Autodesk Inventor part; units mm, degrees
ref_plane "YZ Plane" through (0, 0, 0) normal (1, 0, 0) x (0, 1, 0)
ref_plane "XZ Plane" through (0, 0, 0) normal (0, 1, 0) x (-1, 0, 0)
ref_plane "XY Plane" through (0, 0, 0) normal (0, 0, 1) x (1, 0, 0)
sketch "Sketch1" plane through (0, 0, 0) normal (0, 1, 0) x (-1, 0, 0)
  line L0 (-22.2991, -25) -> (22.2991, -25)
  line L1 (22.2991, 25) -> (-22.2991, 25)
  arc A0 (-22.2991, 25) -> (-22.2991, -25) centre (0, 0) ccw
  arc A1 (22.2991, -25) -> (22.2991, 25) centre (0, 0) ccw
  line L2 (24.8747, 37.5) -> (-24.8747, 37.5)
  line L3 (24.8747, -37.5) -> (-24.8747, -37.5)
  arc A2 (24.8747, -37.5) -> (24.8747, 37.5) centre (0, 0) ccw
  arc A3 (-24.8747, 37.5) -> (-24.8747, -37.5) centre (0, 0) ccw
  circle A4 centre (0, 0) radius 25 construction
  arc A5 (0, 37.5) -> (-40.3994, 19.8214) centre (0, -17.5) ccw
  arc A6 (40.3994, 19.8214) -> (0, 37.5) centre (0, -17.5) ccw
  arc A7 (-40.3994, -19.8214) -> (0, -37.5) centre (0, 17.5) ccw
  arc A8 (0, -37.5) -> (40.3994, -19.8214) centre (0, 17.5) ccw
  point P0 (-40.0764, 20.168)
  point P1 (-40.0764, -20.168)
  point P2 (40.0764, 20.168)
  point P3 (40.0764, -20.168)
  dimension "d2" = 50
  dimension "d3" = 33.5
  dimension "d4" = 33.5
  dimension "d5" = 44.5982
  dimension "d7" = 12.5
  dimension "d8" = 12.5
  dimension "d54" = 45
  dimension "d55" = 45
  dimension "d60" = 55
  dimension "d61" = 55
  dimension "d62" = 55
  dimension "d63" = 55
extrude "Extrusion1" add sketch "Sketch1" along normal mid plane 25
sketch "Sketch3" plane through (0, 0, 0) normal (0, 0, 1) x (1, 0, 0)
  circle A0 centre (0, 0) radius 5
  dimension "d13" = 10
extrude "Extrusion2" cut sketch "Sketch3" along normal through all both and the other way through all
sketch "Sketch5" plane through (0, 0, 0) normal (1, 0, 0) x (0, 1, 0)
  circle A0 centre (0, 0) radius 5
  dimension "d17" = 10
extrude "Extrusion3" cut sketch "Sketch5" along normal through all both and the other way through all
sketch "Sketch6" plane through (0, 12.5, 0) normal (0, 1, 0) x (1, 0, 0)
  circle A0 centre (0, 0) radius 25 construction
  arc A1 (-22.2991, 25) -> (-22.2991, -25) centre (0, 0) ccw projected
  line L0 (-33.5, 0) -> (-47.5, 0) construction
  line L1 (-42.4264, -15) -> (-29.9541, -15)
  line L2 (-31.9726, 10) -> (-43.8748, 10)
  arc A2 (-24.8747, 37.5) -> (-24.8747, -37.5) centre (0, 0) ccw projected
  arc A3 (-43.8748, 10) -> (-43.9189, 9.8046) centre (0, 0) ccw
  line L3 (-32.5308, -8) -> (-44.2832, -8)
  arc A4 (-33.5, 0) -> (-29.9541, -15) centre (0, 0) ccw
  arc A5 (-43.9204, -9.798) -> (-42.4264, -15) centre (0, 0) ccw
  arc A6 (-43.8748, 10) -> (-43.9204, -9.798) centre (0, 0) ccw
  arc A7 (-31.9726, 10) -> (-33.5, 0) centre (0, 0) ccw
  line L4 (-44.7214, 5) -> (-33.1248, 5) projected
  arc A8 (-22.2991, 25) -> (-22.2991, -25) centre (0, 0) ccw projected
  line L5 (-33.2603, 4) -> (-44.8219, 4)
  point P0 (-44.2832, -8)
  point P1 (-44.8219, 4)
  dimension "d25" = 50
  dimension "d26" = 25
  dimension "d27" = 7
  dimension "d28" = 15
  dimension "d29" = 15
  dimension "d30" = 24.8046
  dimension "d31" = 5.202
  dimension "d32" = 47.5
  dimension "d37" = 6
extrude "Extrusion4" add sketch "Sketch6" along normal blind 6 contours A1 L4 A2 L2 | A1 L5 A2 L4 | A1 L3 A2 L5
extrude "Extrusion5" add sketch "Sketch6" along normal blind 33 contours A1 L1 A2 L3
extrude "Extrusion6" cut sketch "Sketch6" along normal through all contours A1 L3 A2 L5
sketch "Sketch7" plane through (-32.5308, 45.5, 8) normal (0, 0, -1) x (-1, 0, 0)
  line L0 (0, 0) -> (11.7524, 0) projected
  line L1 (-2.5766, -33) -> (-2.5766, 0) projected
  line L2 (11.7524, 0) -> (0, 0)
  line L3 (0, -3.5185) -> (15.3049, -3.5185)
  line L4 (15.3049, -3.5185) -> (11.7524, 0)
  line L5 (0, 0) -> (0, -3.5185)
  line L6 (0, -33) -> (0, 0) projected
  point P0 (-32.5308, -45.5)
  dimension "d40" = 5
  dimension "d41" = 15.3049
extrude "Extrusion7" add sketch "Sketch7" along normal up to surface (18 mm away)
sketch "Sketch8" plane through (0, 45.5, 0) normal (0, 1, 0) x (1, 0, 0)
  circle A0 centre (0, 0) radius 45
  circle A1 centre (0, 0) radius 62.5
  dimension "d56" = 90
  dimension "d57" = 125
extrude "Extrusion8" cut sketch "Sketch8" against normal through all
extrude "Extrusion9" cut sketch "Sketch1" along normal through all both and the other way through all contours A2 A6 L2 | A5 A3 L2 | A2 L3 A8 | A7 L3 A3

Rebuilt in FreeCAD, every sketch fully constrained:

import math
import FreeCAD as App
import Part
import Sketcher

V = App.Vector


def add_polygon(sketch, points):
    """Adds a closed chain of lines whose ends are joined by coincident constraints."""
    first, n = sketch.GeometryCount, len(points)
    for a, b in zip(points, points[1:] + points[:1]):
        sketch.addGeometry(Part.LineSegment(App.Vector(*a, 0), App.Vector(*b, 0)), False)
    for i in range(n):
        sketch.addConstraint(Sketcher.Constraint("Coincident", first + i, 2, first + (i + 1) % n, 1))

doc = App.newDocument("Part")
body = doc.addObject("PartDesign::Body", "Body")

# Sketch on XZ plane
sketch1 = body.newObject("Sketcher::SketchObject", "Sketch")
sketch1.AttachmentSupport = (doc.getObject("XZ_Plane"), [""])
sketch1.MapMode = "FlatFace"
sketch1.addGeometry([
    Part.LineSegment(V(-25, 38, 0), V(25, 38, 0)),  # 0
    Part.ArcOfCircle(Part.Circle(V(0, 0, 0), V(0, 0, 1), 45), math.radians(-56), math.radians(56)),  # 1
    Part.LineSegment(V(25, -38, 0), V(-25, -38, 0)),  # 2
    Part.ArcOfCircle(Part.Circle(V(0, 0, 0), V(0, 0, 1), 45), math.radians(124), math.radians(236)),  # 3
    Part.ArcOfCircle(Part.Circle(V(0, 0, 0), V(0, 0, 1), 33), math.radians(-48), math.radians(48)),  # 4
    Part.LineSegment(V(22, 25, 0), V(-22, 25, 0)),  # 5
    Part.ArcOfCircle(Part.Circle(V(0, 0, 0), V(0, 0, 1), 33), math.radians(132), math.radians(228)),  # 6
    Part.LineSegment(V(-22, -25, 0), V(22, -25, 0)),  # 7
], False)
sketch1.addConstraint([
    Sketcher.Constraint("Coincident", 0, 2, 1, 2),
    Sketcher.Constraint("Coincident", 1, 1, 2, 1),
    Sketcher.Constraint("Coincident", 2, 2, 3, 2),
    Sketcher.Constraint("Coincident", 3, 1, 0, 1),
    Sketcher.Constraint("Coincident", 4, 2, 5, 1),
    Sketcher.Constraint("Coincident", 5, 2, 6, 1),
    Sketcher.Constraint("Coincident", 6, 2, 7, 1),
    Sketcher.Constraint("Coincident", 7, 2, 4, 1),
    Sketcher.Constraint("Horizontal", 0),
    Sketcher.Constraint("Horizontal", 2),
    Sketcher.Constraint("Horizontal", 5),
    Sketcher.Constraint("Horizontal", 7),
    Sketcher.Constraint("Coincident", 1, 3, -1, 1),
    Sketcher.Constraint("Coincident", 3, 3, -1, 1),
    Sketcher.Constraint("Coincident", 4, 3, -1, 1),
    Sketcher.Constraint("Coincident", 6, 3, -1, 1),
    Sketcher.Constraint("Equal", 1, 3),
    Sketcher.Constraint("Equal", 4, 6),
    Sketcher.Constraint("Vertical", 0, 2, 1, 1),
    Sketcher.Constraint("Vertical", 5, 2, 6, 2),
    Sketcher.Constraint("Radius", 1, 45.0),
    Sketcher.Constraint("Radius", 4, 33.5),
    Sketcher.Constraint("DistanceY", 4, 2, 0, 2, 12.5),
    Sketcher.Constraint("DistanceX", 5, 2, 5, 1, 44.5982),
])
pad1 = body.newObject("PartDesign::Pad", "Pad")
pad1.Profile = sketch1
pad1.Length = 25
pad1.Midplane = True

# Sketch on XY plane
sketch2 = body.newObject("Sketcher::SketchObject", "Sketch001")
sketch2.AttachmentSupport = (doc.getObject("XY_Plane"), [""])
sketch2.MapMode = "FlatFace"
sketch2.addGeometry(Part.Circle(V(0, 0, 0), V(0, 0, 1), 5), False)
sketch2.addConstraint([
    Sketcher.Constraint("Coincident", 0, 3, -1, 1),
    Sketcher.Constraint("Diameter", 0, 10.0),
])
pocket1 = body.newObject("PartDesign::Pocket", "Pocket")
pocket1.Profile = sketch2
pocket1.Type = "ThroughAll"
pocket1.Midplane = True

# Sketch on YZ plane
sketch3 = body.newObject("Sketcher::SketchObject", "Sketch002")
sketch3.AttachmentSupport = (doc.getObject("YZ_Plane"), [""])
sketch3.MapMode = "FlatFace"
sketch3.addGeometry(Part.Circle(V(0, 0, 0), V(0, 0, 1), 5), False)
sketch3.addConstraint([
    Sketcher.Constraint("Coincident", 0, 3, -1, 1),
    Sketcher.Constraint("Diameter", 0, 10.0),
])
pocket2 = body.newObject("PartDesign::Pocket", "Pocket001")
pocket2.Profile = sketch3
pocket2.Type = "ThroughAll"
pocket2.Midplane = True

# Sketch on XZ plane
sketch4 = body.newObject("Sketcher::SketchObject", "Sketch003")
sketch4.AttachmentSupport = (doc.getObject("XZ_Plane"), [""])
sketch4.MapMode = "FlatFace"
sketch4.AttachmentOffset = App.Placement(V(0, 0, -12.5), App.Rotation())
sketch4.addGeometry([
    Part.LineSegment(V(-32, -10, 0), V(-44, -10, 0)),
    Part.ArcOfCircle(Part.Circle(V(0, 0, 0), V(0, 0, 1), 45), math.radians(170), math.radians(193)),
    Part.LineSegment(V(-44, 8, 0), V(-33, 8, 0)),
    Part.ArcOfCircle(Part.Circle(V(0, 0, 0), V(0, 0, 1), 33), math.radians(166), math.radians(197)),
], False)
sketch4.addConstraint([
    Sketcher.Constraint("Coincident", 0, 2, 1, 2),
    Sketcher.Constraint("Coincident", 1, 1, 2, 1),
    Sketcher.Constraint("Coincident", 2, 2, 3, 1),
    Sketcher.Constraint("Coincident", 3, 2, 0, 1),
    Sketcher.Constraint("Horizontal", 0),
    Sketcher.Constraint("Horizontal", 2),
    Sketcher.Constraint("Coincident", 1, 3, -1, 1),
    Sketcher.Constraint("Coincident", 3, 3, -1, 1),
    Sketcher.Constraint("Radius", 1, 45.0),
    Sketcher.Constraint("Radius", 3, 33.5),
    Sketcher.Constraint("DistanceY", 0, 2, -1, 1, 10.0),
    Sketcher.Constraint("DistanceY", -1, 1, 1, 1, 8.0),
])
pad2 = body.newObject("PartDesign::Pad", "Pad001")
pad2.Profile = sketch4
pad2.Length = 6
pad2.Reversed = True

# Sketch on XZ plane
sketch5 = body.newObject("Sketcher::SketchObject", "Sketch004")
sketch5.AttachmentSupport = (doc.getObject("XZ_Plane"), [""])
sketch5.MapMode = "FlatFace"
sketch5.AttachmentOffset = App.Placement(V(0, 0, -12.5), App.Rotation())
sketch5.addGeometry([
    Part.ArcOfCircle(Part.Circle(V(0, 0, 0), V(0, 0, 1), 33), math.radians(153.4), math.radians(166.18)),
    Part.LineSegment(V(-33, 8, 0), V(-44, 8, 0)),
    Part.ArcOfCircle(Part.Circle(V(0, 0, 0), V(0, 0, 1), 45), math.radians(160.53), math.radians(169.76)),
    Part.LineSegment(V(-42, 15, 0), V(-30, 15, 0)),
], False)
sketch5.addConstraint([
    Sketcher.Constraint("Coincident", 0, 2, 1, 1),
    Sketcher.Constraint("Coincident", 1, 2, 2, 2),
    Sketcher.Constraint("Coincident", 2, 1, 3, 1),
    Sketcher.Constraint("Coincident", 3, 2, 0, 1),
    Sketcher.Constraint("Horizontal", 1),
    Sketcher.Constraint("Horizontal", 3),
    Sketcher.Constraint("Coincident", 0, 3, -1, 1),
    Sketcher.Constraint("Coincident", 2, 3, -1, 1),
    Sketcher.Constraint("DistanceY", -1, 1, 2, 1, 15.0),
    Sketcher.Constraint("Radius", 2, 45.0),
    Sketcher.Constraint("DistanceY", 1, 2, 2, 1, 7.0),
    Sketcher.Constraint("Radius", 0, 33.5),
])
pad3 = body.newObject("PartDesign::Pad", "Pad002")
pad3.Profile = sketch5
pad3.Length = 33
pad3.Reversed = True

# Sketch on XZ plane
sketch6 = body.newObject("Sketcher::SketchObject", "Sketch005")
sketch6.AttachmentSupport = (doc.getObject("XZ_Plane"), [""])
sketch6.MapMode = "FlatFace"
sketch6.AttachmentOffset = App.Placement(V(0, 0, -12.5), App.Rotation())
sketch6.addGeometry([
    Part.ArcOfCircle(Part.Circle(V(0, 0, 0), V(0, 0, 1), 33), math.radians(166), math.radians(187)),
    Part.LineSegment(V(-33, -4, 0), V(-45, -4, 0)),
    Part.ArcOfCircle(Part.Circle(V(0, 0, 0), V(0, 0, 1), 45), math.radians(169.76), math.radians(185.1)),
    Part.LineSegment(V(-44, 8, 0), V(-33, 8, 0)),
], False)
sketch6.addConstraint([
    Sketcher.Constraint("Coincident", 0, 2, 1, 1),
    Sketcher.Constraint("Coincident", 1, 2, 2, 2),
    Sketcher.Constraint("Coincident", 2, 1, 3, 1),
    Sketcher.Constraint("Coincident", 3, 2, 0, 1),
    Sketcher.Constraint("Horizontal", 1),
    Sketcher.Constraint("Horizontal", 3),
    Sketcher.Constraint("Coincident", 0, 3, -1, 1),
    Sketcher.Constraint("Coincident", 2, 3, -1, 1),
    Sketcher.Constraint("Radius", 2, 45.0),
    Sketcher.Constraint("Radius", 0, 33.5),
    Sketcher.Constraint("DistanceY", 0, 2, -1, 1, 4.0),
    Sketcher.Constraint("DistanceY", -1, 1, 2, 1, 8.0),
])
pocket3 = body.newObject("PartDesign::Pocket", "Pocket002")
pocket3.Profile = sketch6
pocket3.Type = "ThroughAll"

# Sketch on XY plane
sketch7 = body.newObject("Sketcher::SketchObject", "Sketch006")
sketch7.AttachmentSupport = (doc.getObject("XY_Plane"), [""])
sketch7.MapMode = "FlatFace"
sketch7.AttachmentOffset = App.Placement(V(0, 0, 8), App.Rotation())
add_polygon(sketch7, [(-44.3, 45.5), (-32.5, 45.5), (-32.5, 42), (-47.8, 42)])  # lines 0-3
sketch7.addConstraint([
    Sketcher.Constraint("Horizontal", 0),
    Sketcher.Constraint("Vertical", 1),
    Sketcher.Constraint("Horizontal", 2),
    Sketcher.Constraint("Distance", 3, 5.0),
    Sketcher.Constraint("DistanceX", 2, 2, 2, 1, 15.305),
    Sketcher.Constraint("DistanceY", -1, 1, 0, 2, 45.5),
    Sketcher.Constraint("DistanceX", 0, 1, 0, 2, 11.7524),
    Sketcher.Constraint("DistanceX", 0, 2, -1, 1, 32.5308),
])
pad4 = body.newObject("PartDesign::Pad", "Pad003")
pad4.Profile = sketch7
pad4.Length = 18
pad4.Reversed = True

# Sketch on XZ plane
sketch8 = body.newObject("Sketcher::SketchObject", "Sketch007")
sketch8.AttachmentSupport = (doc.getObject("XZ_Plane"), [""])
sketch8.MapMode = "FlatFace"
sketch8.AttachmentOffset = App.Placement(V(0, 0, -45.5), App.Rotation())
sketch8.addGeometry([
    Part.Circle(V(0, 0, 0), V(0, 0, 1), 62),
    Part.Circle(V(0, 0, 0), V(0, 0, 1), 45),
], False)
sketch8.addConstraint([
    Sketcher.Constraint("Coincident", 0, 3, -1, 1),
    Sketcher.Constraint("Coincident", 1, 3, -1, 1),
    Sketcher.Constraint("Diameter", 0, 125.0),
    Sketcher.Constraint("Diameter", 1, 90.0),
])
pocket4 = body.newObject("PartDesign::Pocket", "Pocket003")
pocket4.Profile = sketch8
pocket4.Type = "ThroughAll"
pocket4.Reversed = True

# Sketch on XZ plane
sketch9 = body.newObject("Sketcher::SketchObject", "Sketch008")
sketch9.AttachmentSupport = (doc.getObject("XZ_Plane"), [""])
sketch9.MapMode = "FlatFace"
sketch9.addGeometry([
    Part.ArcOfCircle(Part.Circle(V(0, 0, 0), V(0, 0, 1), 45), math.radians(124), math.radians(154)),  # 0
    Part.LineSegment(V(-25, 38, 0), V(0, 38, 0)),  # 1
    Part.ArcOfCircle(Part.Circle(V(0, -18, 0), V(0, 0, 1), 55), math.radians(90), math.radians(137)),  # 2
    Part.ArcOfCircle(Part.Circle(V(0, -18, 0), V(0, 0, 1), 55), math.radians(43), math.radians(90)),  # 3
    Part.LineSegment(V(0, 38, 0), V(25, 38, 0)),  # 4
    Part.ArcOfCircle(Part.Circle(V(0, 0, 0), V(0, 0, 1), 45), math.radians(26), math.radians(56)),  # 5
    Part.ArcOfCircle(Part.Circle(V(0, 0, 0), V(0, 0, 1), 45), math.radians(-154), math.radians(-124)),  # 6
    Part.ArcOfCircle(Part.Circle(V(0, 18, 0), V(0, 0, 1), 55), math.radians(-137), math.radians(-90)),  # 7
    Part.LineSegment(V(0, -38, 0), V(-25, -38, 0)),  # 8
    Part.ArcOfCircle(Part.Circle(V(0, 18, 0), V(0, 0, 1), 55), math.radians(-90), math.radians(-43)),  # 9
    Part.ArcOfCircle(Part.Circle(V(0, 0, 0), V(0, 0, 1), 45), math.radians(-56), math.radians(-26)),  # 10
    Part.LineSegment(V(25, -38, 0), V(0, -38, 0)),  # 11
], False)
sketch9.addConstraint([
    Sketcher.Constraint("Coincident", 0, 1, 1, 1),
    Sketcher.Constraint("Tangent", 1, 2, 2, 1),
    Sketcher.Constraint("Coincident", 2, 2, 0, 2),
    Sketcher.Constraint("Tangent", 3, 2, 4, 1),
    Sketcher.Constraint("Coincident", 4, 2, 5, 2),
    Sketcher.Constraint("Coincident", 5, 1, 3, 1),
    Sketcher.Constraint("Coincident", 6, 1, 7, 1),
    Sketcher.Constraint("Tangent", 7, 2, 8, 1),
    Sketcher.Constraint("Coincident", 8, 2, 6, 2),
    Sketcher.Constraint("Coincident", 9, 2, 10, 2),
    Sketcher.Constraint("Coincident", 10, 1, 11, 1),
    Sketcher.Constraint("Tangent", 11, 2, 9, 1),
    Sketcher.Constraint("Horizontal", 1),
    Sketcher.Constraint("Horizontal", 4),
    Sketcher.Constraint("Horizontal", 8),
    Sketcher.Constraint("Horizontal", 11),
    Sketcher.Constraint("Coincident", 0, 3, -1, 1),
    Sketcher.Constraint("Coincident", 5, 3, -1, 1),
    Sketcher.Constraint("Coincident", 6, 3, -1, 1),
    Sketcher.Constraint("Coincident", 10, 3, -1, 1),
    Sketcher.Constraint("Coincident", 3, 3, 2, 3),
    Sketcher.Constraint("Coincident", 9, 3, 7, 3),
    Sketcher.Constraint("Equal", 2, 3),
    Sketcher.Constraint("Equal", 0, 5),
    Sketcher.Constraint("Equal", 5, 6),
    Sketcher.Constraint("Equal", 3, 7),
    Sketcher.Constraint("Equal", 7, 9),
    Sketcher.Constraint("Equal", 6, 10),
    Sketcher.Constraint("Symmetric", 2, 3, 7, 3, -1, 1),
    Sketcher.Constraint("PointOnObject", 2, 3, -2),
    Sketcher.Constraint("Radius", 0, 45.0),
    Sketcher.Constraint("Radius", 2, 55.0),
    Sketcher.Constraint("DistanceY", 2, 3, 7, 3, 35.0),
])
pocket5 = body.newObject("PartDesign::Pocket", "Pocket004")
pocket5.Profile = sketch9
pocket5.Type = "ThroughAll"
pocket5.Midplane = True

doc.recompute()
